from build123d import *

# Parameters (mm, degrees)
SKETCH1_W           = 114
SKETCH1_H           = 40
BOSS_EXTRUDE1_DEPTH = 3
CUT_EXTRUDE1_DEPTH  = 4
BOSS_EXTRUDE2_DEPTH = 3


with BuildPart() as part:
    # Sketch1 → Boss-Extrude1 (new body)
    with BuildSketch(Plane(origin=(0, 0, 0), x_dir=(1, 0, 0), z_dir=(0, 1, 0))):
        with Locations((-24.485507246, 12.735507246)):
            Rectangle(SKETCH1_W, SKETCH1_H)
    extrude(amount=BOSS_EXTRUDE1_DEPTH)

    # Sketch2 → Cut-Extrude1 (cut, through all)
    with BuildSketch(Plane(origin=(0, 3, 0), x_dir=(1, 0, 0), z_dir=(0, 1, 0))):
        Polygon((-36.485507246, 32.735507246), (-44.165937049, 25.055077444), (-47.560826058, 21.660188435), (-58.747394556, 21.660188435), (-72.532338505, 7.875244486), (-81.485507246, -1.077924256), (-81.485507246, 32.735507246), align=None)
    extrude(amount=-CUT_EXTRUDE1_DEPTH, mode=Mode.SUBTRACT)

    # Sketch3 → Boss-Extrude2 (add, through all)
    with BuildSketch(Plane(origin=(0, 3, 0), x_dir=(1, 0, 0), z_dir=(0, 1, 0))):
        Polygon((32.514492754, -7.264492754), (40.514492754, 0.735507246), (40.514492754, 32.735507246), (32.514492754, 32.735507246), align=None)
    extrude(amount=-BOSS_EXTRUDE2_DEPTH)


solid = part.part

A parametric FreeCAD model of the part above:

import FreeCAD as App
import Part
import Sketcher
from FreeCAD import Vector
Q = App.Units.Quantity


def add_polygon(sketch, points):
    """Adds a closed chain of lines whose ends are joined by coincident constraints."""
    first, n = sketch.GeometryCount, len(points)
    for a, b in zip(points, points[1:] + points[:1]):
        sketch.addGeometry(Part.LineSegment(App.Vector(*a, 0), App.Vector(*b, 0)), False)
    for i in range(n):
        sketch.addConstraint(Sketcher.Constraint("Coincident", first + i, 2, first + (i + 1) % n, 1))

doc = App.newDocument("Part")
body = doc.addObject("PartDesign::Body", "Body")

# Sketch on XZ plane
sketch1 = body.newObject("Sketcher::SketchObject", "Sketch")
sketch1.AttachmentSupport = (doc.getObject("XZ_Plane"), [""])
sketch1.MapMode = "FlatFace"
add_polygon(sketch1, [(-81.485507, -32.735507), (-81.485507, 7.264493), (32.514493, 7.264493), (32.514493, -32.735507)])  # lines 0-3
sketch1.addConstraint(Sketcher.Constraint("Vertical", 0))
sketch1.addConstraint(Sketcher.Constraint("Horizontal", 1))
sketch1.addConstraint(Sketcher.Constraint("Vertical", 2))
sketch1.addConstraint(Sketcher.Constraint("Horizontal", 3))
sketch1.addConstraint(Sketcher.Constraint("DistanceX", 1, 1, 1, 2, 114.0))
sketch1.addConstraint(Sketcher.Constraint("DistanceY", 0, 1, 0, 2, 40.0))
sketch1.addConstraint(Sketcher.Constraint("DistanceX", 0, 2, -1, 1, 81.485507))
sketch1.addConstraint(Sketcher.Constraint("DistanceY", -1, 1, 0, 2, 7.264493))
pad1 = body.newObject("PartDesign::Pad", "Pad")
pad1.Profile = sketch1
pad1.Length = 3
pad1.Reversed = True

# Sketch on XZ plane
sketch2 = body.newObject("Sketcher::SketchObject", "Sketch001")
sketch2.AttachmentSupport = (doc.getObject("XZ_Plane"), [""])
sketch2.MapMode = "FlatFace"
sketch2.AttachmentOffset = App.Placement(Vector(0, 0, -3), App.Rotation())
add_polygon(sketch2, [(-44.165937, -25.055077), (-36.485507, -32.735507), (-81.485507, -32.735507), (-81.485507, 1.077924), (-72.532339, -7.875244), (-58.747395, -21.660188), (-47.560826, -21.660188)])  # lines 0-6
sketch2.addConstraint(Sketcher.Constraint("Horizontal", 1))
sketch2.addConstraint(Sketcher.Constraint("Vertical", 2))
sketch2.addConstraint(Sketcher.Constraint("Horizontal", 5))
sketch2.addConstraint(Sketcher.Constraint("Parallel", 0, 3))
sketch2.addConstraint(Sketcher.Constraint("Parallel", 3, 4))
sketch2.addConstraint(Sketcher.Constraint("Parallel", 4, 6))
sketch2.addConstraint(Sketcher.Constraint("DistanceX", 1, 2, 1, 1, 45.0))
sketch2.addConstraint(Sketcher.Constraint("Angle", 0, Q("-45 deg")))
sketch2.addConstraint(Sketcher.Constraint("Distance", 6, 4.801098))
sketch2.addConstraint(Sketcher.Constraint("DistanceX", 5, 1, 5, 2, 11.186568))
sketch2.addConstraint(Sketcher.Constraint("DistanceX", 3, 2, 6, 2, 28.366401))
sketch2.addConstraint(Sketcher.Constraint("DistanceX", 3, 2, -1, 1, 72.532339))
sketch2.addConstraint(Sketcher.Constraint("DistanceY", 4, 2, -1, 1, 21.660188))
sketch2.addConstraint(Sketcher.Constraint("DistanceX", 2, 2, 3, 2, 8.953169))
pocket1 = body.newObject("PartDesign::Pocket", "Pocket")
pocket1.Profile = sketch2
pocket1.Type = "ThroughAll"
pocket1.Reversed = True

# Sketch on XZ plane
sketch3 = body.newObject("Sketcher::SketchObject", "Sketch002")
sketch3.AttachmentSupport = (doc.getObject("XZ_Plane"), [""])
sketch3.MapMode = "FlatFace"
sketch3.AttachmentOffset = App.Placement(Vector(0, 0, -3), App.Rotation())
add_polygon(sketch3, [(32.514493, 7.264493), (40.514493, -0.735507), (40.514493, -32.735507), (32.514493, -32.735507)])  # lines 0-3
sketch3.addConstraint(Sketcher.Constraint("Vertical", 1))
sketch3.addConstraint(Sketcher.Constraint("Horizontal", 2))
sketch3.addConstraint(Sketcher.Constraint("Vertical", 3))
sketch3.addConstraint(Sketcher.Constraint("DistanceX", 2, 2, 2, 1, 8.0))
sketch3.addConstraint(Sketcher.Constraint("DistanceY", 1, 2, 1, 1, 32.0))
sketch3.addConstraint(Sketcher.Constraint("DistanceY", 3, 1, 3, 2, 40.0))
sketch3.addConstraint(Sketcher.Constraint("DistanceX", -1, 1, 0, 2, 40.514493))
sketch3.addConstraint(Sketcher.Constraint("DistanceY", 0, 2, -1, 1, 0.735507))
pad2 = body.newObject("PartDesign::Pad", "Pad001")
pad2.Profile = sketch3
pad2.Length = 3

doc.recompute()
